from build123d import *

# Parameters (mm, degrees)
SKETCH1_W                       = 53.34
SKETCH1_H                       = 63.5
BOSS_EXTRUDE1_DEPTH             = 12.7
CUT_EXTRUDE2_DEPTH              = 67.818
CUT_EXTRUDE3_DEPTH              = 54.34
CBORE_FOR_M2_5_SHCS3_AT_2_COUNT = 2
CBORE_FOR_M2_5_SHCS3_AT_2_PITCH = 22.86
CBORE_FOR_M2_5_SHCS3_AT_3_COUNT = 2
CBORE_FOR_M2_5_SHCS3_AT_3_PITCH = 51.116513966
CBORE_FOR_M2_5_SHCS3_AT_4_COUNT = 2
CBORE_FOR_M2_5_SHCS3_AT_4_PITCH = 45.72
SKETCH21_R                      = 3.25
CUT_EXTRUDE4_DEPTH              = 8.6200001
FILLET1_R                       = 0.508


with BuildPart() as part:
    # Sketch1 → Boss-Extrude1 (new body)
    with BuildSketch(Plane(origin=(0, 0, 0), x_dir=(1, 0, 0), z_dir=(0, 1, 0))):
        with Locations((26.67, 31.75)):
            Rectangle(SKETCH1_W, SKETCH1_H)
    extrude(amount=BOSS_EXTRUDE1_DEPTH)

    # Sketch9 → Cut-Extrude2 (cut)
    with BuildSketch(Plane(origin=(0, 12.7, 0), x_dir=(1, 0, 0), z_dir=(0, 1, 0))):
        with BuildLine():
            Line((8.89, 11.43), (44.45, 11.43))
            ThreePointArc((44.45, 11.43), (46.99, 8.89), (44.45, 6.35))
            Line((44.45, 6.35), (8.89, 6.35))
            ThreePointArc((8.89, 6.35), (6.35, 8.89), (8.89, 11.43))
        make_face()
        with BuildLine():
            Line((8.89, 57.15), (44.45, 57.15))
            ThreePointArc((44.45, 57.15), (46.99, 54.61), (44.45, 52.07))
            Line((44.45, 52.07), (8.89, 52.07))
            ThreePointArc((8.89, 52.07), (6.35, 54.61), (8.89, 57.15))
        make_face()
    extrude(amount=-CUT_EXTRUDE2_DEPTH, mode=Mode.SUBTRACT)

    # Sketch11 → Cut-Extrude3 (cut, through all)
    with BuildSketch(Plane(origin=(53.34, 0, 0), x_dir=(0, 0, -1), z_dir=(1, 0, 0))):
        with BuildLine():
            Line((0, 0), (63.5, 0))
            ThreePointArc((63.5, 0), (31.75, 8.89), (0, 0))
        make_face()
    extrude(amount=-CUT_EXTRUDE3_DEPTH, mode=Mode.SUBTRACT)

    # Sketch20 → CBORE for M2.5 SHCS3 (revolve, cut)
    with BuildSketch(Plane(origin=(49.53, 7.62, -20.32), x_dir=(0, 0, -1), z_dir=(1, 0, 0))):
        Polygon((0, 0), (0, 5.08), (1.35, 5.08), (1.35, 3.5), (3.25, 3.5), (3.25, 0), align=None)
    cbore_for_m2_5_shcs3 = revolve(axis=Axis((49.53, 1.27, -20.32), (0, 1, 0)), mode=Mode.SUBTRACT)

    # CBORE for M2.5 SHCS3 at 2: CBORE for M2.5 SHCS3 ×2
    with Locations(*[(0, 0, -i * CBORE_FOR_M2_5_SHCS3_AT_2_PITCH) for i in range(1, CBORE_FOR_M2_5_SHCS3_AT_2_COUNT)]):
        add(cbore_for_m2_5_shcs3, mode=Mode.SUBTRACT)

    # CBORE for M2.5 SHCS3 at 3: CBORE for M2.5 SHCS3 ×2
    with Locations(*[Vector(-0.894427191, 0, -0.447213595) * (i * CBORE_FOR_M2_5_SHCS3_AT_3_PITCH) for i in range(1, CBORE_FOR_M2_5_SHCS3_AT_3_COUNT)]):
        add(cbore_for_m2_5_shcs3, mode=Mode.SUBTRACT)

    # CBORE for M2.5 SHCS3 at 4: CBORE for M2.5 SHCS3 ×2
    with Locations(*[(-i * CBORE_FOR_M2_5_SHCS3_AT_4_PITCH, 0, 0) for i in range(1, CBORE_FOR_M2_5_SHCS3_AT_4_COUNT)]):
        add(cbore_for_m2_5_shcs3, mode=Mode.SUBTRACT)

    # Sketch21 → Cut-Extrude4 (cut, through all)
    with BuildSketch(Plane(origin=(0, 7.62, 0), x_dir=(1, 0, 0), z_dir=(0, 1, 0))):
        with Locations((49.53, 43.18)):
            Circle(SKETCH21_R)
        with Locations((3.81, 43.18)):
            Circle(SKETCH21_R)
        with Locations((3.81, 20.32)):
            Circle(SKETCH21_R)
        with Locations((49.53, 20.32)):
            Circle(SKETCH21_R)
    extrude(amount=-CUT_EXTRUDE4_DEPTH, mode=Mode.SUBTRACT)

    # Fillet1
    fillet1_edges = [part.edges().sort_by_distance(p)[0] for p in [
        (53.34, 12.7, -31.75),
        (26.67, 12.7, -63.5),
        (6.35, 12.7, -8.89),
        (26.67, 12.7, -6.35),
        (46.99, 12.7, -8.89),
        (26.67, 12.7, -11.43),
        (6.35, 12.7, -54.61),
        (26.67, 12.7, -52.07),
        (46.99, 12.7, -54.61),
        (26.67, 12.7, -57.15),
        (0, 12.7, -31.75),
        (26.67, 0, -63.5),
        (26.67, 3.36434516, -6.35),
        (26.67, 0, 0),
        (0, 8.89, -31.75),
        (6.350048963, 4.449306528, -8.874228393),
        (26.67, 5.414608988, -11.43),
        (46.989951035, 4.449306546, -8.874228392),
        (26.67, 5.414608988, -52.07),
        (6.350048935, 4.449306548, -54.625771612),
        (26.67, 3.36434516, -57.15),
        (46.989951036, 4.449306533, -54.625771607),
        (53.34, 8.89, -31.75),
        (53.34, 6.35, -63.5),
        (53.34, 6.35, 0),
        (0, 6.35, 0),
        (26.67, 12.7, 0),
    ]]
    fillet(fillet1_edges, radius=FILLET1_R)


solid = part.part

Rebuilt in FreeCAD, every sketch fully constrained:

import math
import FreeCAD as App
import Part
import Sketcher
Q = App.Units.Quantity


def edges_at(feature, points):
    """Names of the edges that pass closest to the given points."""
    edges = feature.Shape.Edges
    near = lambda p: min(range(len(edges)), key=lambda i: edges[i].distToShape(Part.Vertex(*p))[0])
    return sorted({f"Edge{near(p) + 1}" for p in points})


def add_polygon(sketch, points):
    """Adds a closed chain of lines whose ends are joined by coincident constraints."""
    first, n = sketch.GeometryCount, len(points)
    for a, b in zip(points, points[1:] + points[:1]):
        sketch.addGeometry(Part.LineSegment(App.Vector(*a, 0), App.Vector(*b, 0)), False)
    for i in range(n):
        sketch.addConstraint(Sketcher.Constraint("Coincident", first + i, 2, first + (i + 1) % n, 1))

doc = App.newDocument("Part")
body = doc.addObject("PartDesign::Body", "Body")

# Sketch on XZ plane
sketch1 = body.newObject("Sketcher::SketchObject", "Sketch")
sketch1.AttachmentSupport = (doc.getObject("XZ_Plane"), [""])
sketch1.MapMode = "FlatFace"
add_polygon(sketch1, [(0, -64), (0, 0), (53, 0), (53, -64)])  # lines 0-3
sketch1.addConstraint(Sketcher.Constraint("Vertical", 0))
sketch1.addConstraint(Sketcher.Constraint("Horizontal", 1))
sketch1.addConstraint(Sketcher.Constraint("Vertical", 2))
sketch1.addConstraint(Sketcher.Constraint("Horizontal", 3))
sketch1.addConstraint(Sketcher.Constraint("Coincident", 0, 2, -1, 1))
sketch1.addConstraint(Sketcher.Constraint("DistanceX", 1, 1, 1, 2, Q("2.1 in")))
sketch1.addConstraint(Sketcher.Constraint("DistanceY", 0, 1, 0, 2, Q("2.5 in")))
pad1 = body.newObject("PartDesign::Pad", "Pad")
pad1.Profile = sketch1
pad1.Length = Q("0.5 in")
pad1.Reversed = True

# Sketch on XZ plane
sketch2 = body.newObject("Sketcher::SketchObject", "Sketch001")
sketch2.AttachmentSupport = (doc.getObject("XZ_Plane"), [""])
sketch2.MapMode = "FlatFace"
sketch2.AttachmentOffset = App.Placement(App.Vector(0, 0, -0.5 * 25.4), App.Rotation())
sketch2.addGeometry(Part.LineSegment(App.Vector(44.5, -11.4, 0), App.Vector(8.9, -11.4, 0)), False)
sketch2.addGeometry(Part.ArcOfCircle(Part.Circle(App.Vector(8.9, -8.9, 0), App.Vector(0, 0, 1), 2.5), math.radians(90), math.radians(270)), False)
sketch2.addGeometry(Part.LineSegment(App.Vector(8.9, -6.3, 0), App.Vector(44.5, -6.3, 0)), False)
sketch2.addGeometry(Part.ArcOfCircle(Part.Circle(App.Vector(44.5, -8.9, 0), App.Vector(0, 0, 1), 2.5), math.radians(-90), math.radians(90)), False)
sketch2.addGeometry(Part.LineSegment(App.Vector(44.5, -57.1, 0), App.Vector(8.9, -57.1, 0)), False)
sketch2.addGeometry(Part.ArcOfCircle(Part.Circle(App.Vector(8.9, -54.6, 0), App.Vector(0, 0, 1), 2.5), math.radians(90), math.radians(270)), False)
sketch2.addGeometry(Part.LineSegment(App.Vector(8.9, -52.1, 0), App.Vector(44.5, -52.1, 0)), False)
sketch2.addGeometry(Part.ArcOfCircle(Part.Circle(App.Vector(44.5, -54.6, 0), App.Vector(0, 0, 1), 2.5), math.radians(-90), math.radians(90)), False)
sketch2.addConstraint(Sketcher.Constraint("Tangent", 0, 2, 1, 2))
sketch2.addConstraint(Sketcher.Constraint("Tangent", 1, 1, 2, 1))
sketch2.addConstraint(Sketcher.Constraint("Tangent", 2, 2, 3, 2))
sketch2.addConstraint(Sketcher.Constraint("Tangent", 3, 1, 0, 1))
sketch2.addConstraint(Sketcher.Constraint("Tangent", 4, 2, 5, 2))
sketch2.addConstraint(Sketcher.Constraint("Tangent", 5, 1, 6, 1))
sketch2.addConstraint(Sketcher.Constraint("Tangent", 6, 2, 7, 2))
sketch2.addConstraint(Sketcher.Constraint("Tangent", 7, 1, 4, 1))
sketch2.addConstraint(Sketcher.Constraint("Horizontal", 0))
sketch2.addConstraint(Sketcher.Constraint("Horizontal", 2))
sketch2.addConstraint(Sketcher.Constraint("Horizontal", 4))
sketch2.addConstraint(Sketcher.Constraint("Horizontal", 6))
sketch2.addConstraint(Sketcher.Constraint("Equal", 3, 5))
sketch2.addConstraint(Sketcher.Constraint("Vertical", 1, 3, 5, 3))
sketch2.addConstraint(Sketcher.Constraint("Vertical", 3, 3, 7, 3))
sketch2.addConstraint(Sketcher.Constraint("Radius", 1, Q("0.1 in")))
sketch2.addConstraint(Sketcher.Constraint("DistanceX", 0, 2, 0, 1, Q("1.4 in")))
sketch2.addConstraint(Sketcher.Constraint("DistanceY", 4, 2, 1, 1, Q("2 in")))
sketch2.addConstraint(Sketcher.Constraint("DistanceX", -1, 1, 1, 3, Q("0.35 in")))
sketch2.addConstraint(Sketcher.Constraint("DistanceY", 1, 3, -1, 1, Q("0.35 in")))
pocket1 = body.newObject("PartDesign::Pocket", "Pocket")
pocket1.Profile = sketch2
pocket1.Length = Q("2.67 in")
pocket1.Reversed = True

# Sketch on YZ plane
sketch3 = body.newObject("Sketcher::SketchObject", "Sketch002")
sketch3.AttachmentSupport = (doc.getObject("YZ_Plane"), [""])
sketch3.MapMode = "FlatFace"
sketch3.AttachmentOffset = App.Placement(App.Vector(0, 0, 2.1 * 25.4), App.Rotation())
sketch3.addGeometry(Part.LineSegment(App.Vector(0, 0, 0), App.Vector(0, -64, 0)), False)
sketch3.addGeometry(Part.ArcOfCircle(Part.Circle(App.Vector(-52, -32, 0), App.Vector(0, 0, 1), 61), math.radians(-31), math.radians(31)), False)
sketch3.addConstraint(Sketcher.Constraint("Coincident", 0, 1, 1, 2))
sketch3.addConstraint(Sketcher.Constraint("Coincident", 1, 1, 0, 2))
sketch3.addConstraint(Sketcher.Constraint("Vertical", 0))
sketch3.addConstraint(Sketcher.Constraint("Coincident", 0, 1, -1, 1))
sketch3.addConstraint(Sketcher.Constraint("DistanceY", 0, 2, 0, 1, Q("2.5 in")))
sketch3.addConstraint(Sketcher.Constraint("Radius", 1, Q("61.141429 mm")))
pocket2 = body.newObject("PartDesign::Pocket", "Pocket001")
pocket2.Profile = sketch3
pocket2.Type = "ThroughAll"

# Sketch on YZ plane
sketch4 = body.newObject("Sketcher::SketchObject", "Sketch003")
sketch4.AttachmentSupport = (doc.getObject("YZ_Plane"), [""])
sketch4.MapMode = "FlatFace"
sketch4.AttachmentOffset = App.Placement(App.Vector(0, 0, 1.95 * 25.4), App.Rotation())
add_polygon(sketch4, [(12.7, -20.3), (7.6, -20.3), (7.6, -23.6), (11.1, -23.6), (11.1, -21.7), (12.7, -21.7)])  # lines 0-5
sketch4.addGeometry(Part.LineSegment(App.Vector(7.6, -20.3, 0), App.Vector(12.7, -20.3, 0)), True)  # axis
sketch4.addConstraint(Sketcher.Constraint("Horizontal", 0))
sketch4.addConstraint(Sketcher.Constraint("Vertical", 1))
sketch4.addConstraint(Sketcher.Constraint("Horizontal", 2))
sketch4.addConstraint(Sketcher.Constraint("Vertical", 3))
sketch4.addConstraint(Sketcher.Constraint("Horizontal", 4))
sketch4.addConstraint(Sketcher.Constraint("Vertical", 5))
sketch4.addConstraint(Sketcher.Constraint("Horizontal", 6))
sketch4.addConstraint(Sketcher.Constraint("Coincident", 6, 1, 0, 2))
sketch4.addConstraint(Sketcher.Constraint("Vertical", 4, 2, 6, 2))
sketch4.addConstraint(Sketcher.Constraint("DistanceX", 0, 2, 0, 1, Q("0.2 in")))
sketch4.addConstraint(Sketcher.Constraint("DistanceX", -1, 1, 0, 2, Q("0.3 in")))
sketch4.addConstraint(Sketcher.Constraint("DistanceY", 0, 2, -1, 1, Q("0.8 in")))
sketch4.addConstraint(Sketcher.Constraint("DistanceX", 2, 1, 2, 2, Q("3.5 mm")))
sketch4.addConstraint(Sketcher.Constraint("DistanceY", 1, 2, 1, 1, Q("3.25 mm")))
sketch4.addConstraint(Sketcher.Constraint("DistanceY", 3, 1, 3, 2, Q("1.9 mm")))
groove = body.newObject("PartDesign::Groove", "Groove")
groove.Profile = sketch4
groove.ReferenceAxis = (sketch4, ["Axis0"])
groove.Angle = 360
doc.recompute()

linearpattern = body.newObject("PartDesign::LinearPattern", "LinearPattern")
linearpattern.Originals = [groove]
linearpattern.Direction = (doc.getObject("Z_Axis"), [""])
linearpattern.Mode = "offset"
linearpattern.Offset = Q("0.9 in")
linearpattern.Occurrences = 2
linearpattern.Reversed = True
body.Tip = linearpattern
doc.recompute()

datumline = body.newObject("PartDesign::Line", "DatumLine")
datumline.Placement = App.Placement(App.Vector(0, 0, 0), App.Rotation(App.Vector(0, 0, 1), App.Vector(-0.894427191, 0, -0.447213595)))
linearpattern2 = body.newObject("PartDesign::LinearPattern", "LinearPattern001")
linearpattern2.Originals = [groove]
linearpattern2.Direction = (datumline, [""])
linearpattern2.Mode = "offset"
linearpattern2.Offset = 51.116514
linearpattern2.Occurrences = 2
body.Tip = linearpattern2
doc.recompute()

linearpattern3 = body.newObject("PartDesign::LinearPattern", "LinearPattern002")
linearpattern3.Originals = [groove]
linearpattern3.Direction = (doc.getObject("X_Axis"), [""])
linearpattern3.Mode = "offset"
linearpattern3.Offset = Q("1.8 in")
linearpattern3.Occurrences = 2
linearpattern3.Reversed = True
body.Tip = linearpattern3

# Sketch on XZ plane
sketch5 = body.newObject("Sketcher::SketchObject", "Sketch004")
sketch5.AttachmentSupport = (doc.getObject("XZ_Plane"), [""])
sketch5.MapMode = "FlatFace"
sketch5.AttachmentOffset = App.Placement(App.Vector(0, 0, -0.3 * 25.4), App.Rotation())
sketch5.addGeometry(Part.Circle(App.Vector(49.5, -43.2, 0), App.Vector(0, 0, 1), 3.2), False)
sketch5.addGeometry(Part.Circle(App.Vector(3.8, -43.2, 0), App.Vector(0, 0, 1), 3.2), False)
sketch5.addGeometry(Part.Circle(App.Vector(3.8, -20.3, 0), App.Vector(0, 0, 1), 3.2), False)
sketch5.addGeometry(Part.Circle(App.Vector(49.5, -20.3, 0), App.Vector(0, 0, 1), 3.2), False)
sketch5.addConstraint(Sketcher.Constraint("Equal", 0, 1))
sketch5.addConstraint(Sketcher.Constraint("Equal", 1, 2))
sketch5.addConstraint(Sketcher.Constraint("Equal", 2, 3))
sketch5.addConstraint(Sketcher.Constraint("Horizontal", 0, 3, 1, 3))
sketch5.addConstraint(Sketcher.Constraint("Horizontal", 2, 3, 3, 3))
sketch5.addConstraint(Sketcher.Constraint("Vertical", 1, 3, 2, 3))
sketch5.addConstraint(Sketcher.Constraint("Vertical", 0, 3, 3, 3))
sketch5.addConstraint(Sketcher.Constraint("DistanceY", 0, 3, -1, 1, Q("1.7 in")))
sketch5.addConstraint(Sketcher.Constraint("DistanceY", 2, 3, -1, 1, Q("0.8 in")))
sketch5.addConstraint(Sketcher.Constraint("DistanceX", 1, 3, 0, 3, Q("1.8 in")))
sketch5.addConstraint(Sketcher.Constraint("Diameter", 0, Q("6.5 mm")))
sketch5.addConstraint(Sketcher.Constraint("DistanceX", -1, 1, 0, 3, Q("1.95 in")))
pocket3 = body.newObject("PartDesign::Pocket", "Pocket002")
pocket3.Profile = sketch5
pocket3.Type = "ThroughAll"
pocket3.Reversed = True
doc.recompute()

fillet = body.newObject("PartDesign::Fillet", "Fillet")
fillet.Base = (pocket3, edges_at(pocket3, [
    (53.34, 12.7, -31.75),
    (26.67, 12.7, -63.5),
    (6.35, 12.7, -8.89),
    (26.67, 12.7, -6.35),
    (46.99, 12.7, -8.89),
    (26.67, 12.7, -11.43),
    (6.35, 12.7, -54.61),
    (26.67, 12.7, -52.07),
    (46.99, 12.7, -54.61),
    (26.67, 12.7, -57.15),
    (0, 12.7, -31.75),
    (26.67, 0, -63.5),
    (26.67, 3.364, -6.35),
    (26.67, 0, 0),
    (0, 8.89, -31.75),
    (6.35, 4.449, -8.874),
    (26.67, 5.415, -11.43),
    (46.99, 4.449, -8.874),
    (26.67, 5.415, -52.07),
    (6.35, 4.449, -54.626),
    (26.67, 3.364, -57.15),
    (46.99, 4.449, -54.626),
    (53.34, 8.89, -31.75),
    (53.34, 6.35, -63.5),
    (53.34, 6.35, 0),
    (0, 6.35, 0),
    (26.67, 12.7, 0),
]))
fillet.Radius = Q("0.02 in")

doc.recompute()
